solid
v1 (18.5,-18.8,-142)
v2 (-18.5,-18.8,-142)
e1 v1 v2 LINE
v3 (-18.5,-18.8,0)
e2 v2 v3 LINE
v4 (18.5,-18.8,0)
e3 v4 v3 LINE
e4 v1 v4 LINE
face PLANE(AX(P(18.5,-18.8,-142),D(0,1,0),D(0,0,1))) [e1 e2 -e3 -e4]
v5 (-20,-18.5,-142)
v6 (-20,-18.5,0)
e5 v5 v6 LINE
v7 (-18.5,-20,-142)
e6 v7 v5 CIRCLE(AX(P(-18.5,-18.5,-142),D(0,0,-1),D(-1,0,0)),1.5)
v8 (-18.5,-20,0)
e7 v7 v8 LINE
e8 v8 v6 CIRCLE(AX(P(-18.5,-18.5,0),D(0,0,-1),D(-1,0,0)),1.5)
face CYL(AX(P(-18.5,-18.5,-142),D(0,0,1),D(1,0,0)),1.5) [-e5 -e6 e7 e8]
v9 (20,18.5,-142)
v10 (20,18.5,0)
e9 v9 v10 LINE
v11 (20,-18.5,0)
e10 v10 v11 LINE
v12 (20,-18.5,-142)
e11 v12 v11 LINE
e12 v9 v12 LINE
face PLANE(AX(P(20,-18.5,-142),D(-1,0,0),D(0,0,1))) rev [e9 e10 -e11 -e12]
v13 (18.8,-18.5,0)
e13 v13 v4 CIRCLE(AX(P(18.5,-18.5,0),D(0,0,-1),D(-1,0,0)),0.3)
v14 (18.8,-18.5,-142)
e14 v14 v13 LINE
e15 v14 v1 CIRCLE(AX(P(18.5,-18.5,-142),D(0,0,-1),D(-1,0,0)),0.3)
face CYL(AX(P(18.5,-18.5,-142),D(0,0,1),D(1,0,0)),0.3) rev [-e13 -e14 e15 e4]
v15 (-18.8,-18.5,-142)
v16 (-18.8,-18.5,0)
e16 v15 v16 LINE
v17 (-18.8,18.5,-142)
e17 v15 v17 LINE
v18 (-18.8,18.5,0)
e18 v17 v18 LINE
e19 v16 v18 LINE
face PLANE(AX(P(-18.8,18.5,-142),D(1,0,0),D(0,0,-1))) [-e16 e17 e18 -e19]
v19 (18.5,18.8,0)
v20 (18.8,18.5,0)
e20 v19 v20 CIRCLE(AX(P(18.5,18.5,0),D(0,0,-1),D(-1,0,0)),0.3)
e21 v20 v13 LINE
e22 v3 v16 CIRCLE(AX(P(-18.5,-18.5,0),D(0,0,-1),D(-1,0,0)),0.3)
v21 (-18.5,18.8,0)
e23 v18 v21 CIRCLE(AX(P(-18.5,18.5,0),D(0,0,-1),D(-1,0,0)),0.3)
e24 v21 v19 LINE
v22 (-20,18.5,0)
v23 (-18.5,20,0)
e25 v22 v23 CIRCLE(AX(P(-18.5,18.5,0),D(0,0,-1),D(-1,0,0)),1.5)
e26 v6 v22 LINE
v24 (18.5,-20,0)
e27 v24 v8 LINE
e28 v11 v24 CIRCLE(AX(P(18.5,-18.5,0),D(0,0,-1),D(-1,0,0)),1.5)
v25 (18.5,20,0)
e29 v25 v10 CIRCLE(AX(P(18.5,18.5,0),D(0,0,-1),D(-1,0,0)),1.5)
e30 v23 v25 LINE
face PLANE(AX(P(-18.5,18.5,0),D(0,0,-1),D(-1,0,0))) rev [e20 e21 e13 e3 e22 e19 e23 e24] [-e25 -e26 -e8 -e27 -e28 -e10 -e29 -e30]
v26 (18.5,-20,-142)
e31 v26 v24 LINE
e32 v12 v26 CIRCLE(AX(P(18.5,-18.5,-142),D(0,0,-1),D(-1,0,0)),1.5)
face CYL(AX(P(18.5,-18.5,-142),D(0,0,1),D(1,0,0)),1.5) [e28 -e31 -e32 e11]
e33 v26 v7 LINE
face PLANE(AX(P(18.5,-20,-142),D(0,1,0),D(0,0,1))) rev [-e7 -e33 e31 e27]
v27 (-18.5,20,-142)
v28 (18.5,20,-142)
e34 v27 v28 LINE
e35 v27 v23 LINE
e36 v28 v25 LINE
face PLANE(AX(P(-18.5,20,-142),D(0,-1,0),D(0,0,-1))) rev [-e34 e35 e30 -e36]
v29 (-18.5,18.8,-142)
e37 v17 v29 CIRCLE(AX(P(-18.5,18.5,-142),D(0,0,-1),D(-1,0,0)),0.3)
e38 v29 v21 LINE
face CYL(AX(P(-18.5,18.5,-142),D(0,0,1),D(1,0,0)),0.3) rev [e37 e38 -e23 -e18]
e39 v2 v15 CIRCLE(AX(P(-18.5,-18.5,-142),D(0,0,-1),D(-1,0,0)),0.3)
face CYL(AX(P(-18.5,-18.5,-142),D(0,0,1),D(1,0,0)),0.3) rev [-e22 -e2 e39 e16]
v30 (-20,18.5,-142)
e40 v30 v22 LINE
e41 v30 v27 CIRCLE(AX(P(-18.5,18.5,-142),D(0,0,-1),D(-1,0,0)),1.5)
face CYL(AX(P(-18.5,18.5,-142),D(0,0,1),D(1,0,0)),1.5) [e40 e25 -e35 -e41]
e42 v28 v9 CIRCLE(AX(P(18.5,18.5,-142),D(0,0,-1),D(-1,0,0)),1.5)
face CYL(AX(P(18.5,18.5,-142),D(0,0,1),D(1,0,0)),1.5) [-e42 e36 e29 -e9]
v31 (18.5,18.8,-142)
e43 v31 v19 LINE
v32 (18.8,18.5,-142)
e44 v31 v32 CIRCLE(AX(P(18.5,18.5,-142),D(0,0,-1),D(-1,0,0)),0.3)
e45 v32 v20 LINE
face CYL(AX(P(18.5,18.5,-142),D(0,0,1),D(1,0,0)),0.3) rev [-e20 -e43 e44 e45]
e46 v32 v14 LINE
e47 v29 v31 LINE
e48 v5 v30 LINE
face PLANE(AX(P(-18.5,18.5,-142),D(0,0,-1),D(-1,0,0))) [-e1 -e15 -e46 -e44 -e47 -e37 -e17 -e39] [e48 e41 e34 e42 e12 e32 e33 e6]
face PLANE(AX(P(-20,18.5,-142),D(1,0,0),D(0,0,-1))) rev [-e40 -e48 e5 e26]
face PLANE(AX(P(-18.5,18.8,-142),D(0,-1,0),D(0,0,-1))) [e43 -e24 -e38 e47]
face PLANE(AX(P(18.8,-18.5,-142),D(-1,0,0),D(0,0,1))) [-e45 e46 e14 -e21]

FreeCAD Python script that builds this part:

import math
import FreeCAD as App
import Part
import Sketcher
from FreeCAD import Vector

doc = App.newDocument("Part")
body = doc.addObject("PartDesign::Body", "Body")

# Sketch on XY plane
sketch1 = body.newObject("Sketcher::SketchObject", "Sketch")
sketch1.AttachmentSupport = (doc.getObject("XY_Plane"), [""])
sketch1.MapMode = "FlatFace"
sketch1.addGeometry([
    Part.LineSegment(Vector(18.5, -20, 0), Vector(-18.5, -20, 0)),  # 0
    Part.ArcOfCircle(Part.Circle(Vector(-18.5, -18.5, 0), Vector(0, 0, 1), 1.5), math.radians(180), math.radians(270)),  # 1
    Part.LineSegment(Vector(-20, -18.5, 0), Vector(-20, 18.5, 0)),  # 2
    Part.ArcOfCircle(Part.Circle(Vector(-18.5, 18.5, 0), Vector(0, 0, 1), 1.5), math.radians(90), math.radians(180)),  # 3
    Part.LineSegment(Vector(-18.5, 20, 0), Vector(18.5, 20, 0)),  # 4
    Part.ArcOfCircle(Part.Circle(Vector(18.5, 18.5, 0), Vector(0, 0, 1), 1.5), math.radians(0), math.radians(90)),  # 5
    Part.LineSegment(Vector(20, 18.5, 0), Vector(20, -18.5, 0)),  # 6
    Part.ArcOfCircle(Part.Circle(Vector(18.5, -18.5, 0), Vector(0, 0, 1), 1.5), math.radians(-90), math.radians(0)),  # 7
    Part.LineSegment(Vector(-18.5, -18.8, 0), Vector(18.5, -18.8, 0)),  # 8
    Part.ArcOfCircle(Part.Circle(Vector(18.5, -18.5, 0), Vector(0, 0, 1), 0.3), math.radians(-90), math.radians(0)),  # 9
    Part.LineSegment(Vector(18.8, -18.5, 0), Vector(18.8, 18.5, 0)),  # 10
    Part.ArcOfCircle(Part.Circle(Vector(18.5, 18.5, 0), Vector(0, 0, 1), 0.3), math.radians(0), math.radians(90)),  # 11
    Part.LineSegment(Vector(18.5, 18.8, 0), Vector(-18.5, 18.8, 0)),  # 12
    Part.ArcOfCircle(Part.Circle(Vector(-18.5, 18.5, 0), Vector(0, 0, 1), 0.3), math.radians(90), math.radians(180)),  # 13
    Part.LineSegment(Vector(-18.8, 18.5, 0), Vector(-18.8, -18.5, 0)),  # 14
    Part.ArcOfCircle(Part.Circle(Vector(-18.5, -18.5, 0), Vector(0, 0, 1), 0.3), math.radians(-180), math.radians(-90)),  # 15
], False)
sketch1.addConstraint([
    Sketcher.Constraint("Tangent", 0, 2, 1, 2),
    Sketcher.Constraint("Tangent", 1, 1, 2, 1),
    Sketcher.Constraint("Tangent", 2, 2, 3, 2),
    Sketcher.Constraint("Tangent", 3, 1, 4, 1),
    Sketcher.Constraint("Tangent", 4, 2, 5, 2),
    Sketcher.Constraint("Tangent", 5, 1, 6, 1),
    Sketcher.Constraint("Tangent", 6, 2, 7, 2),
    Sketcher.Constraint("Tangent", 7, 1, 0, 1),
    Sketcher.Constraint("Tangent", 8, 2, 9, 1),
    Sketcher.Constraint("Tangent", 9, 2, 10, 1),
    Sketcher.Constraint("Tangent", 10, 2, 11, 1),
    Sketcher.Constraint("Tangent", 11, 2, 12, 1),
    Sketcher.Constraint("Tangent", 12, 2, 13, 1),
    Sketcher.Constraint("Tangent", 13, 2, 14, 1),
    Sketcher.Constraint("Tangent", 14, 2, 15, 1),
    Sketcher.Constraint("Tangent", 15, 2, 8, 1),
    Sketcher.Constraint("Horizontal", 0),
    Sketcher.Constraint("Vertical", 2),
    Sketcher.Constraint("Horizontal", 4),
    Sketcher.Constraint("Vertical", 6),
    Sketcher.Constraint("Horizontal", 8),
    Sketcher.Constraint("Vertical", 10),
    Sketcher.Constraint("Horizontal", 12),
    Sketcher.Constraint("Vertical", 14),
    Sketcher.Constraint("Coincident", 9, 3, 7, 3),
    Sketcher.Constraint("Coincident", 11, 3, 5, 3),
    Sketcher.Constraint("Coincident", 13, 3, 3, 3),
    Sketcher.Constraint("Equal", 1, 3),
    Sketcher.Constraint("Equal", 3, 5),
    Sketcher.Constraint("Equal", 5, 7),
    Sketcher.Constraint("Equal", 13, 15),
    Sketcher.Constraint("Symmetric", 1, 3, 5, 3, -1, 1),
    Sketcher.Constraint("Equal", 12, 2),
    Sketcher.Constraint("Radius", 1, 1.5),
    Sketcher.Constraint("Radius", 9, 0.3),
    Sketcher.Constraint("DistanceX", 0, 2, 0, 1, 37.0),
])
pad1 = body.newObject("PartDesign::Pad", "Pad")
pad1.Profile = sketch1
pad1.Length = 142
pad1.Reversed = True

doc.recompute()
